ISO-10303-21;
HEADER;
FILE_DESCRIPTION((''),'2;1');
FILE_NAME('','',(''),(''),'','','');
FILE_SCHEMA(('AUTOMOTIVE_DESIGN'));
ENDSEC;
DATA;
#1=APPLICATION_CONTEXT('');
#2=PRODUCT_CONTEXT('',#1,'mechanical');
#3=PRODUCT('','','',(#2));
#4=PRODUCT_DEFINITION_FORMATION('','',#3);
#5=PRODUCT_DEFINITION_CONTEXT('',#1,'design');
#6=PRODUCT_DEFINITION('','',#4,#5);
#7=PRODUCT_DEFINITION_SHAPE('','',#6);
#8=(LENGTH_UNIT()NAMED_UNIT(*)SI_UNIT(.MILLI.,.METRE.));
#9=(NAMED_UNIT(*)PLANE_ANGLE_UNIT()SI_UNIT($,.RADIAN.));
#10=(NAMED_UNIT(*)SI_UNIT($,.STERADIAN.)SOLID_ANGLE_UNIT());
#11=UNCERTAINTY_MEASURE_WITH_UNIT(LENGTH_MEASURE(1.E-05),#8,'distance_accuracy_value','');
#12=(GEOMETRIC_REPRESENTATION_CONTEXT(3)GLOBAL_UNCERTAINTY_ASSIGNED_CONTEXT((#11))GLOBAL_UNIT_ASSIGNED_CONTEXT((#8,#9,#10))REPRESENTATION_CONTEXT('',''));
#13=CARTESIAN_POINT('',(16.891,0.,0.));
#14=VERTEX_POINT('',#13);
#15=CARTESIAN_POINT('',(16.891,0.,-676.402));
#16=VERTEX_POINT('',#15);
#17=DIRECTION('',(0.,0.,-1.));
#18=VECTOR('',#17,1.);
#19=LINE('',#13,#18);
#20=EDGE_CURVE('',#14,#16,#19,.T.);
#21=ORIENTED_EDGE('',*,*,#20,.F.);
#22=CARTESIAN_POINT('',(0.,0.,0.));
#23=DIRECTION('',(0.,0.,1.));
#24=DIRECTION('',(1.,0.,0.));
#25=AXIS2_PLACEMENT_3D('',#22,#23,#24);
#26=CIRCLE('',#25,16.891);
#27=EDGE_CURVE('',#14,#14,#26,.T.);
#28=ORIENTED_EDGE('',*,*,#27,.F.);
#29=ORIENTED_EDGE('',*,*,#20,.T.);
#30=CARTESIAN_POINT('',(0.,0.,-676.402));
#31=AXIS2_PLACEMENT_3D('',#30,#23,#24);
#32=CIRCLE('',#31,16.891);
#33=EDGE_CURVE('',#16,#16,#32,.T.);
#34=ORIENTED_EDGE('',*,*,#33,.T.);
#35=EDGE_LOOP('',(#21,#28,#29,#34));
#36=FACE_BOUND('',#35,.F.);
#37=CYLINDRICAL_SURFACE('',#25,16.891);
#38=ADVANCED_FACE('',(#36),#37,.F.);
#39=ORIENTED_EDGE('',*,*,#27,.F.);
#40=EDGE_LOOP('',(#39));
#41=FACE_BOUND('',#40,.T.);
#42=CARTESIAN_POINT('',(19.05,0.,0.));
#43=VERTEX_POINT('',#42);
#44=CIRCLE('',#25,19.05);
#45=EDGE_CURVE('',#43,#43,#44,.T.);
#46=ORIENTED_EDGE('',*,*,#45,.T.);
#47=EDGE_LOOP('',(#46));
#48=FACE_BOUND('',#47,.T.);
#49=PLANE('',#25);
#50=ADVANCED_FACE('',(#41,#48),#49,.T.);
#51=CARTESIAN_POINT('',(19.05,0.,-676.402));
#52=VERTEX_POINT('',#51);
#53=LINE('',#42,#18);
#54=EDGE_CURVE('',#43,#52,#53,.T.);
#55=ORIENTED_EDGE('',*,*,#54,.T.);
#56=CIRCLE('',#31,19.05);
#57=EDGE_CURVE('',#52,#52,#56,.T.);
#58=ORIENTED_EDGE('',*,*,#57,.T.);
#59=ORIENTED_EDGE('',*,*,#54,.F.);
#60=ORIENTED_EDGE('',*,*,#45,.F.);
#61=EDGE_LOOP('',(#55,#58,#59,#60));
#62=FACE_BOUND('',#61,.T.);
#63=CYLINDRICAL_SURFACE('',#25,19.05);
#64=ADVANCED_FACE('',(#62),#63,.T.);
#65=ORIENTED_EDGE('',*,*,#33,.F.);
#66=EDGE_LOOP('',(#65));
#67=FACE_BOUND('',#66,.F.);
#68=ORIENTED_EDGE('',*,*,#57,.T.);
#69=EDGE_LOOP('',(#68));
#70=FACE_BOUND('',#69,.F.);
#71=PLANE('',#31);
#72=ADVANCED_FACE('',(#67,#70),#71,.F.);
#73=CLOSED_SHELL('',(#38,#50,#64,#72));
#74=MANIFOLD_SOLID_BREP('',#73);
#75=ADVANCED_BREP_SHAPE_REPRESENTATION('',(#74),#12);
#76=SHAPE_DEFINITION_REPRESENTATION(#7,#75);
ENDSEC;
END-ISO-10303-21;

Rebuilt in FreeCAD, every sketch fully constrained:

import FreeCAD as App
import Part
import Sketcher
Q = App.Units.Quantity

doc = App.newDocument("Part")
body = doc.addObject("PartDesign::Body", "Body")

# Sketch on XY plane
sketch1 = body.newObject("Sketcher::SketchObject", "Sketch")
sketch1.AttachmentSupport = (doc.getObject("XY_Plane"), [""])
sketch1.MapMode = "FlatFace"
sketch1.addGeometry([
    Part.Circle(App.Vector(0, 0, 0), App.Vector(0, 0, 1), 19.05),
    Part.Circle(App.Vector(0, 0, 0), App.Vector(0, 0, 1), 16.891),
], False)
sketch1.addConstraint([
    Sketcher.Constraint("Coincident", 0, 3, -1, 1),
    Sketcher.Constraint("Coincident", 1, 3, -1, 1),
    Sketcher.Constraint("Diameter", 0, Q("1.5 in")),
    Sketcher.Constraint("Diameter", 1, Q("1.33 in")),
])
pad1 = body.newObject("PartDesign::Pad", "Pad")
pad1.Profile = sketch1
pad1.Length = Q("26.63 in")
pad1.Reversed = True

doc.recompute()
